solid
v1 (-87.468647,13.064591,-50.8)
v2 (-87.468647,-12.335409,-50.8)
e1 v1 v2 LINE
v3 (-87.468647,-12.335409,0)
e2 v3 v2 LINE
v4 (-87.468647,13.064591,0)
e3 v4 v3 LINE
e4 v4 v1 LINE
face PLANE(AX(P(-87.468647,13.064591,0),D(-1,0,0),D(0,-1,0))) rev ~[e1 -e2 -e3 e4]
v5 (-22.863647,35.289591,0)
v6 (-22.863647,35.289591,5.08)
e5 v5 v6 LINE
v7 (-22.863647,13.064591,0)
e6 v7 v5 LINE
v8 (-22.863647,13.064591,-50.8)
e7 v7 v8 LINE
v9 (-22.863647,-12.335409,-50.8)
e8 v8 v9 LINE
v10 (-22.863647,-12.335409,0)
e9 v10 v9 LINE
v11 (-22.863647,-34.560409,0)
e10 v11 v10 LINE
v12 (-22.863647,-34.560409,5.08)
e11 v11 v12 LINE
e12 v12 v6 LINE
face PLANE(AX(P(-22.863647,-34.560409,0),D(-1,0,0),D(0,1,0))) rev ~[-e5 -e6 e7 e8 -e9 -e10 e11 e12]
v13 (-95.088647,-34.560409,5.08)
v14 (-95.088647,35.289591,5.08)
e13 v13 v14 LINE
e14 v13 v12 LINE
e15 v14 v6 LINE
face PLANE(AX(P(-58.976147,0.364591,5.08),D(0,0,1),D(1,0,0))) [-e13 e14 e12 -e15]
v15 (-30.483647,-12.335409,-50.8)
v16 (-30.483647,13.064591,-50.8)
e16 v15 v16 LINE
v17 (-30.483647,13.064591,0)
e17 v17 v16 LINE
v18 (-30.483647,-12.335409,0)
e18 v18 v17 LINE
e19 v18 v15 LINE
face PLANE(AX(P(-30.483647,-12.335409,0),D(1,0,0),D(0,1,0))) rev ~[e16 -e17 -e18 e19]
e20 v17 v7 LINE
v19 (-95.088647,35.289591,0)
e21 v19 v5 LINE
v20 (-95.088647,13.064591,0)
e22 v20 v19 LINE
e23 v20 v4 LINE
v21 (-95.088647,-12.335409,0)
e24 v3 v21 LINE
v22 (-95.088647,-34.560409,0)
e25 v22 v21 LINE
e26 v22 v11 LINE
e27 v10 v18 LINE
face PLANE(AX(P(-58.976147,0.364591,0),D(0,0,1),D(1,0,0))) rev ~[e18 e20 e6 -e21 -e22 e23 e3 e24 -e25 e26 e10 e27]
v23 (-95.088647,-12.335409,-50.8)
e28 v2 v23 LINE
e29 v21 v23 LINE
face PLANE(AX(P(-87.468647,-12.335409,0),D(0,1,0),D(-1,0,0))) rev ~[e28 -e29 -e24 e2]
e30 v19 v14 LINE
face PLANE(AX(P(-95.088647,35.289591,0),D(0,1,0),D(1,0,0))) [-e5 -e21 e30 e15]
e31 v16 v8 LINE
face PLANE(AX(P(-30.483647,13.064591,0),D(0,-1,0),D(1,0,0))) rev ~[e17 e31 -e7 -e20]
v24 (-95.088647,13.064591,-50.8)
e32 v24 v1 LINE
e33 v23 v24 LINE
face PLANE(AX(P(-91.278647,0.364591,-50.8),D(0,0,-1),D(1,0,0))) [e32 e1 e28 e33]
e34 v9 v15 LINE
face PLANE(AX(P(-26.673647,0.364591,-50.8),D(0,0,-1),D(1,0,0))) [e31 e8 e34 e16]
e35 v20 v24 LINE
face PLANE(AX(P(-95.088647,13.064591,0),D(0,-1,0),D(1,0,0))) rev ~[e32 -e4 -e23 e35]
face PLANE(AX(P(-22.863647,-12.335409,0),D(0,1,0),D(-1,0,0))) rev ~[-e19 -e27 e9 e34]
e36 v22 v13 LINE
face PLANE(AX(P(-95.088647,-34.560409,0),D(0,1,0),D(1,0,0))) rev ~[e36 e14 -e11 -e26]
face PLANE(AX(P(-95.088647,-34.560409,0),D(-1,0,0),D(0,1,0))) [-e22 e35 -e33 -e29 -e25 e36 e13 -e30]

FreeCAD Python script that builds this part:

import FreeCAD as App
import Part
import Sketcher
from FreeCAD import Vector
Q = App.Units.Quantity

doc = App.newDocument("Part")
body = doc.addObject("PartDesign::Body", "Body")

# Sketch on XY plane
sketch1 = body.newObject("Sketcher::SketchObject", "Sketch")
sketch1.AttachmentSupport = (doc.getObject("XY_Plane"), [""])
sketch1.MapMode = "FlatFace"
sketch1.addGeometry([
    Part.LineSegment(Vector(-95, 35, 0), Vector(-95, -35, 0)),
    Part.LineSegment(Vector(-95, -35, 0), Vector(-23, -35, 0)),
    Part.LineSegment(Vector(-23, -35, 0), Vector(-23, 35, 0)),
    Part.LineSegment(Vector(-23, 35, 0), Vector(-95, 35, 0)),
], False)
sketch1.addConstraint([
    Sketcher.Constraint("Coincident", 0, 2, 1, 1),
    Sketcher.Constraint("Coincident", 1, 2, 2, 1),
    Sketcher.Constraint("Coincident", 2, 2, 3, 1),
    Sketcher.Constraint("Coincident", 3, 2, 0, 1),
    Sketcher.Constraint("Vertical", 0),
    Sketcher.Constraint("Horizontal", 1),
    Sketcher.Constraint("Vertical", 2),
    Sketcher.Constraint("Horizontal", 3),
    Sketcher.Constraint("DistanceY", 0, 2, 0, 1, Q("2.75 in")),
    Sketcher.Constraint("DistanceX", 1, 1, 1, 2, Q("72.225 mm")),
    Sketcher.Constraint("DistanceY", 0, 2, -1, 1, Q("34.560409 mm")),
    Sketcher.Constraint("DistanceX", 0, 2, -1, 1, Q("95.088647 mm")),
])
pad1 = body.newObject("PartDesign::Pad", "Pad")
pad1.Profile = sketch1
pad1.Length = Q("0.2 in")

# Sketch on XY plane
sketch2 = body.newObject("Sketcher::SketchObject", "Sketch001")
sketch2.AttachmentSupport = (doc.getObject("XY_Plane"), [""])
sketch2.MapMode = "FlatFace"
sketch2.addGeometry([
    Part.LineSegment(Vector(-95, -12, 0), Vector(-95, 13, 0)),  # 0
    Part.LineSegment(Vector(-95, 13, 0), Vector(-87, 13, 0)),  # 1
    Part.LineSegment(Vector(-87, 13, 0), Vector(-87, -12, 0)),  # 2
    Part.LineSegment(Vector(-87, -12, 0), Vector(-95, -12, 0)),  # 3
    Part.LineSegment(Vector(-23, -12, 0), Vector(-30, -12, 0)),  # 4
    Part.LineSegment(Vector(-30, -12, 0), Vector(-30, 13, 0)),  # 5
    Part.LineSegment(Vector(-30, 13, 0), Vector(-23, 13, 0)),  # 6
    Part.LineSegment(Vector(-23, 13, 0), Vector(-23, -12, 0)),  # 7
], False)
sketch2.addConstraint([
    Sketcher.Constraint("Coincident", 0, 2, 1, 1),
    Sketcher.Constraint("Coincident", 1, 2, 2, 1),
    Sketcher.Constraint("Coincident", 2, 2, 3, 1),
    Sketcher.Constraint("Coincident", 3, 2, 0, 1),
    Sketcher.Constraint("Coincident", 4, 2, 5, 1),
    Sketcher.Constraint("Coincident", 5, 2, 6, 1),
    Sketcher.Constraint("Coincident", 6, 2, 7, 1),
    Sketcher.Constraint("Coincident", 7, 2, 4, 1),
    Sketcher.Constraint("Vertical", 0),
    Sketcher.Constraint("Horizontal", 1),
    Sketcher.Constraint("Vertical", 2),
    Sketcher.Constraint("Horizontal", 3),
    Sketcher.Constraint("Horizontal", 4),
    Sketcher.Constraint("Vertical", 5),
    Sketcher.Constraint("Horizontal", 6),
    Sketcher.Constraint("Vertical", 7),
    Sketcher.Constraint("Horizontal", 3, 2, 4, 2),
    Sketcher.Constraint("Horizontal", 1, 2, 5, 2),
    Sketcher.Constraint("Equal", 3, 4),
    Sketcher.Constraint("DistanceY", 0, 1, 0, 2, Q("1 in")),
    Sketcher.Constraint("DistanceX", 1, 1, 1, 2, Q("0.3 in")),
    Sketcher.Constraint("DistanceX", 2, 2, 4, 2, Q("56.985 mm")),
    Sketcher.Constraint("DistanceY", -1, 1, 0, 2, Q("13.064591 mm")),
    Sketcher.Constraint("DistanceX", 0, 2, -1, 1, Q("95.088647 mm")),
])
pad2 = body.newObject("PartDesign::Pad", "Pad001")
pad2.Profile = sketch2
pad2.Length = Q("2 in")
pad2.Reversed = True

doc.recompute()
